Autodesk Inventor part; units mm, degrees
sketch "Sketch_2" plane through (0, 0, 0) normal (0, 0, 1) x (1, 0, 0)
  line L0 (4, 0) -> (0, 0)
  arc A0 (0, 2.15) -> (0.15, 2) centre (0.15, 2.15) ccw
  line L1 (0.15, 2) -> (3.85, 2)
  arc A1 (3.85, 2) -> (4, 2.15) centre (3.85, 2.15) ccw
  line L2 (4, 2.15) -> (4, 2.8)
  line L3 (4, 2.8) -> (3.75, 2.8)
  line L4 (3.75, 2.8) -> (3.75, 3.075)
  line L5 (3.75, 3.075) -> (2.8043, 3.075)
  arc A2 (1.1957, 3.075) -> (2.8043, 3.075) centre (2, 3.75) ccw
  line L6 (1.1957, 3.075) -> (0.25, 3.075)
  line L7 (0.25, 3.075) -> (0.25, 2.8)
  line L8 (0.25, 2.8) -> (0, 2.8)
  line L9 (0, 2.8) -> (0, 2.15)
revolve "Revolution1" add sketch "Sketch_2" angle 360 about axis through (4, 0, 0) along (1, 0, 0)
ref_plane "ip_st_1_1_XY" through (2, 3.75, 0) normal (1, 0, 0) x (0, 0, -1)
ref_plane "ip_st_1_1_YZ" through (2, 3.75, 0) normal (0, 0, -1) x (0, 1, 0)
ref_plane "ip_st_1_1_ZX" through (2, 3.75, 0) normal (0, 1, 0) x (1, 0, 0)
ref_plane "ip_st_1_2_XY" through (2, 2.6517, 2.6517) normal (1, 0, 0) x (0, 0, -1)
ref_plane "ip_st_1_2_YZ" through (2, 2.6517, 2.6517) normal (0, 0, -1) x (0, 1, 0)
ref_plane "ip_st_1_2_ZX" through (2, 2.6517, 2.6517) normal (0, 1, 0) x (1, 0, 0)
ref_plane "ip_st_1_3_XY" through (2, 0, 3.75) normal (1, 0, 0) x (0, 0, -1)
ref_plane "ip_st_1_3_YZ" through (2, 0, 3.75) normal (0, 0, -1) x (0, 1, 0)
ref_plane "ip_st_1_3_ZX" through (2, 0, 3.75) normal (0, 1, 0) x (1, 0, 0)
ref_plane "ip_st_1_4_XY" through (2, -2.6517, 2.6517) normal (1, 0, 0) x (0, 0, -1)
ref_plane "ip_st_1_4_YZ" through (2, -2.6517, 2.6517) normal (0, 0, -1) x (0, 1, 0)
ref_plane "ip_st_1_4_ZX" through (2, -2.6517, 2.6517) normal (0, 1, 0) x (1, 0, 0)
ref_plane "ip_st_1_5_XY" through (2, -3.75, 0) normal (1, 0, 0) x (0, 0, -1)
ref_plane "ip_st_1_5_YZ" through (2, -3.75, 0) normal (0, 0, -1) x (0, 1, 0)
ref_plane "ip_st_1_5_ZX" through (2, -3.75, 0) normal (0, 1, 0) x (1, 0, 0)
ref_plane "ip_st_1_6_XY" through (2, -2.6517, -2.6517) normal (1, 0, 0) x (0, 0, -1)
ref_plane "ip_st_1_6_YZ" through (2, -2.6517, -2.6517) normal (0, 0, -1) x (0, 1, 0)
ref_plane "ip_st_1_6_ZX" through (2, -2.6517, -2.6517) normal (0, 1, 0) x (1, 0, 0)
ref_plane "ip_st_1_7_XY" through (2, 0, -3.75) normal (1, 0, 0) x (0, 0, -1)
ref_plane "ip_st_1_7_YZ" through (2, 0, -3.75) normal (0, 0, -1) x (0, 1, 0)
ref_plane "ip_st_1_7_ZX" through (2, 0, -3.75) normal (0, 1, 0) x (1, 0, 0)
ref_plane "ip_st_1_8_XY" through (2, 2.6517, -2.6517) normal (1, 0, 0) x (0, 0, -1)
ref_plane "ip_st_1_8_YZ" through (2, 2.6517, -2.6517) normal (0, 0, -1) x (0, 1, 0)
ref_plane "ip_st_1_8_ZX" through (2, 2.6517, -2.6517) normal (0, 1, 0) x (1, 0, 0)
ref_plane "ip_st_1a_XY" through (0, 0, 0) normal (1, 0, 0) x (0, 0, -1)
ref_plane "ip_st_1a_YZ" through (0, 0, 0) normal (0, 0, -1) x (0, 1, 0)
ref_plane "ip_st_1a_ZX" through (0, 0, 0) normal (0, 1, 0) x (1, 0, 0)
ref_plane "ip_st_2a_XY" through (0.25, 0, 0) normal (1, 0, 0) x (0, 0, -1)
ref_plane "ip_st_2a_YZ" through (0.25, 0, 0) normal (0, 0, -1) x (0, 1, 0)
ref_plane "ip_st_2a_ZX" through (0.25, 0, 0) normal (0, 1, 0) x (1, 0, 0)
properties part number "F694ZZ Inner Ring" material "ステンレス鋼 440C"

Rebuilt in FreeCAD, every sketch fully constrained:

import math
import FreeCAD as App
import Part
import Sketcher

doc = App.newDocument("Part")
body = doc.addObject("PartDesign::Body", "Body")

# Sketch on XY plane
sketch1 = body.newObject("Sketcher::SketchObject", "Sketch")
sketch1.AttachmentSupport = (doc.getObject("XY_Plane"), [""])
sketch1.MapMode = "FlatFace"
sketch1.addGeometry([
    Part.LineSegment(App.Vector(0, 2.8, 0), App.Vector(0, 2.15, 0)),  # 0
    Part.ArcOfCircle(Part.Circle(App.Vector(0.15, 2.15, 0), App.Vector(0, 0, 1), 0.15), math.radians(180), math.radians(270)),  # 1
    Part.LineSegment(App.Vector(0.15, 2, 0), App.Vector(3.85, 2, 0)),  # 2
    Part.ArcOfCircle(Part.Circle(App.Vector(3.85, 2.15, 0), App.Vector(0, 0, 1), 0.15), math.radians(-90), math.radians(0)),  # 3
    Part.LineSegment(App.Vector(4, 2.15, 0), App.Vector(4, 2.8, 0)),  # 4
    Part.LineSegment(App.Vector(4, 2.8, 0), App.Vector(3.75, 2.8, 0)),  # 5
    Part.LineSegment(App.Vector(3.75, 2.8, 0), App.Vector(3.75, 3.075, 0)),  # 6
    Part.LineSegment(App.Vector(3.75, 3.075, 0), App.Vector(2.8043, 3.075, 0)),  # 7
    Part.ArcOfCircle(Part.Circle(App.Vector(2, 3.75, 0), App.Vector(0, 0, 1), 1.050011), math.radians(-139.995311), math.radians(-40.004689)),  # 8
    Part.LineSegment(App.Vector(1.1957, 3.075, 0), App.Vector(0.25, 3.075, 0)),  # 9
    Part.LineSegment(App.Vector(0.25, 3.075, 0), App.Vector(0.25, 2.8, 0)),  # 10
    Part.LineSegment(App.Vector(0.25, 2.8, 0), App.Vector(0, 2.8, 0)),  # 11
], False)
sketch1.addConstraint([
    Sketcher.Constraint("Tangent", 0, 2, 1, 1),
    Sketcher.Constraint("Tangent", 1, 2, 2, 1),
    Sketcher.Constraint("Tangent", 2, 2, 3, 1),
    Sketcher.Constraint("Tangent", 3, 2, 4, 1),
    Sketcher.Constraint("Coincident", 4, 2, 5, 1),
    Sketcher.Constraint("Coincident", 5, 2, 6, 1),
    Sketcher.Constraint("Coincident", 6, 2, 7, 1),
    Sketcher.Constraint("Coincident", 7, 2, 8, 2),
    Sketcher.Constraint("Coincident", 8, 1, 9, 1),
    Sketcher.Constraint("Coincident", 9, 2, 10, 1),
    Sketcher.Constraint("Coincident", 10, 2, 11, 1),
    Sketcher.Constraint("Coincident", 11, 2, 0, 1),
    Sketcher.Constraint("Vertical", 0),
    Sketcher.Constraint("Horizontal", 2),
    Sketcher.Constraint("Vertical", 4),
    Sketcher.Constraint("Horizontal", 5),
    Sketcher.Constraint("Vertical", 6),
    Sketcher.Constraint("Horizontal", 7),
    Sketcher.Constraint("Horizontal", 9),
    Sketcher.Constraint("Vertical", 10),
    Sketcher.Constraint("Horizontal", 11),
    Sketcher.Constraint("Equal", 1, 3),
    Sketcher.Constraint("PointOnObject", 0, 2, -2),
    Sketcher.Constraint("Horizontal", 7, 2, 8, 1),
    Sketcher.Constraint("Horizontal", 5, 2, 10, 2),
    Sketcher.Constraint("Equal", 7, 9),
    Sketcher.Constraint("Equal", 5, 11),
    Sketcher.Constraint("Radius", 1, 0.15),
    Sketcher.Constraint("Radius", 8, 1.05),
    Sketcher.Constraint("DistanceX", 2, 1, 2, 2, 3.7),
    Sketcher.Constraint("DistanceY", -1, 1, 1, 2, 2.0),
    Sketcher.Constraint("DistanceX", 5, 2, 5, 1, 0.25),
    Sketcher.Constraint("DistanceY", 0, 2, 0, 1, 0.65),
    Sketcher.Constraint("DistanceY", 1, 3, 8, 3, 1.6),
    Sketcher.Constraint("DistanceY", 6, 1, 6, 2, 0.275),
])
revolution = body.newObject("PartDesign::Revolution", "Revolution")
revolution.Profile = sketch1
revolution.ReferenceAxis = (sketch1, ["H_Axis"])
revolution.Angle = 360

doc.recompute()
